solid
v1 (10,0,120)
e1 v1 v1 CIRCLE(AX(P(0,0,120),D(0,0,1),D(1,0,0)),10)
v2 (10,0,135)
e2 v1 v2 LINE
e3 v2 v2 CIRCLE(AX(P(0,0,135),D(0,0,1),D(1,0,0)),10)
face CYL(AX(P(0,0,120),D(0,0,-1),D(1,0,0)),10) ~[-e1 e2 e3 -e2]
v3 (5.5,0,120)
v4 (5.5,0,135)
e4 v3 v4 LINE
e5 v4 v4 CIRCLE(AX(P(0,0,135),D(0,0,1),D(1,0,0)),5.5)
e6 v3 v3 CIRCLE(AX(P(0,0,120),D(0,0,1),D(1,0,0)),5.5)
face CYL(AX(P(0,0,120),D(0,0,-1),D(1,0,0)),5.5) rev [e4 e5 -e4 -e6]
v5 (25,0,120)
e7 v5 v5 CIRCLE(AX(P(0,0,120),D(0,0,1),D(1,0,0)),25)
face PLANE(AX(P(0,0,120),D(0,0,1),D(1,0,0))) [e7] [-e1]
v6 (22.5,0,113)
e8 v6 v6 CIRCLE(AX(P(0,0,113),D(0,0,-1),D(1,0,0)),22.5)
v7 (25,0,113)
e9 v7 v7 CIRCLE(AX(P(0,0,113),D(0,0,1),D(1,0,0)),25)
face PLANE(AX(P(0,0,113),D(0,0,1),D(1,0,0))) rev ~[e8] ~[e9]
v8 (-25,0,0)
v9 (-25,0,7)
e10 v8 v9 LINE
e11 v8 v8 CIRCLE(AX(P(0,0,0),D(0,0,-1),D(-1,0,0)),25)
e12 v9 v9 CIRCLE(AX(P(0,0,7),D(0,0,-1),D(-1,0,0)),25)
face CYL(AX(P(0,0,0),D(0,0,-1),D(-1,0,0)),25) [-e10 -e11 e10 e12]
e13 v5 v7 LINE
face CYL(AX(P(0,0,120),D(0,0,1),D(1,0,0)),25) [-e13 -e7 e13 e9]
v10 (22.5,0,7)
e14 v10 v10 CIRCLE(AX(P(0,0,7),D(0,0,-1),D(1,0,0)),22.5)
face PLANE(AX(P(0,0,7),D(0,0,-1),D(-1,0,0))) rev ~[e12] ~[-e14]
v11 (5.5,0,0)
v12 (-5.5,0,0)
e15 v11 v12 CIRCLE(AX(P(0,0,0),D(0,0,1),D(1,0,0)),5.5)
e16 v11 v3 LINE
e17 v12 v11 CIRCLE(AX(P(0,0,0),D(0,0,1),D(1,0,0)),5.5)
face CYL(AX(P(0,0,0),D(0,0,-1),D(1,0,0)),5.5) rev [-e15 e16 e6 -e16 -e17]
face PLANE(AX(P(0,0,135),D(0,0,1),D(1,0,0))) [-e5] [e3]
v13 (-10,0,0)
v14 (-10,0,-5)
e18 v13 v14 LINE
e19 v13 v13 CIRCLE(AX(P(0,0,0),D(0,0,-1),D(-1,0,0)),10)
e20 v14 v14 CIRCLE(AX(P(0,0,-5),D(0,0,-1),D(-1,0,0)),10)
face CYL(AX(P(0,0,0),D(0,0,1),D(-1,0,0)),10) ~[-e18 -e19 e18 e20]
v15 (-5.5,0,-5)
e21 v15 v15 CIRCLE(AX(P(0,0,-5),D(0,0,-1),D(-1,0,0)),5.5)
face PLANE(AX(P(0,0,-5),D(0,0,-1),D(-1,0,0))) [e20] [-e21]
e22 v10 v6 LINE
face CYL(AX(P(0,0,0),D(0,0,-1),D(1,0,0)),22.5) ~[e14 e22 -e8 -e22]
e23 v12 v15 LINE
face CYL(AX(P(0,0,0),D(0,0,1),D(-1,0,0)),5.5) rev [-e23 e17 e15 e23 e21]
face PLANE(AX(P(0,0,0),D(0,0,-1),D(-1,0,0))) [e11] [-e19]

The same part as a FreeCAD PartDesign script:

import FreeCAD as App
import Part
import Sketcher
Q = App.Units.Quantity

doc = App.newDocument("Part")
body = doc.addObject("PartDesign::Body", "Body")

sketch1 = doc.addObject("Sketcher::SketchObject", "Sketch")
body.addObject(sketch1)
sketch1.AttachmentSupport = (doc.XY_Plane, [""])
sketch1.MapMode = "FlatFace"
sketch1.addGeometry(Part.Circle(App.Vector(0, 0, 0), App.Vector(0, 0, 1), 22), False)
sketch1.addGeometry(Part.Circle(App.Vector(0, 0, 0), App.Vector(0, 0, 1), 6), False)
sketch1.addConstraint(Sketcher.Constraint("Coincident", 0, 3, -1, 1))
sketch1.addConstraint(Sketcher.Constraint("Coincident", 1, 3, -1, 1))
sketch1.addConstraint(Sketcher.Constraint("Diameter", 0, Q("45 mm")))
sketch1.addConstraint(Sketcher.Constraint("Diameter", 1, Q("11 mm")))
pad1 = doc.addObject("PartDesign::Pad", "Pad")
body.addObject(pad1)
pad1.Profile = sketch1
pad1.Length = 120

sketch2 = doc.addObject("Sketcher::SketchObject", "Sketch001")
body.addObject(sketch2)
sketch2.AttachmentSupport = (doc.XY_Plane, [""])
sketch2.MapMode = "FlatFace"
sketch2.AttachmentOffset = App.Placement(App.Vector(0, 0, 120), App.Rotation())
sketch2.addGeometry(Part.Circle(App.Vector(0, 0, 0), App.Vector(0, 0, 1), 25), False)
sketch2.addGeometry(Part.Circle(App.Vector(0, 0, 0), App.Vector(0, 0, 1), 6), False)
sketch2.addConstraint(Sketcher.Constraint("Coincident", 0, 3, -1, 1))
sketch2.addConstraint(Sketcher.Constraint("Coincident", 1, 3, -1, 1))
sketch2.addConstraint(Sketcher.Constraint("Diameter", 0, Q("50 mm")))
sketch2.addConstraint(Sketcher.Constraint("Diameter", 1, Q("11 mm")))
pad2 = doc.addObject("PartDesign::Pad", "Pad001")
body.addObject(pad2)
pad2.Profile = sketch2
pad2.Length = 7
pad2.Reversed = True

sketch3 = doc.addObject("Sketcher::SketchObject", "Sketch002")
body.addObject(sketch3)
sketch3.AttachmentSupport = (doc.XY_Plane, [""])
sketch3.MapMode = "FlatFace"
sketch3.addGeometry(Part.Circle(App.Vector(0, 0, 0), App.Vector(0, 0, 1), 25), False)
sketch3.addGeometry(Part.Circle(App.Vector(0, 0, 0), App.Vector(0, 0, 1), 6), False)
sketch3.addConstraint(Sketcher.Constraint("Coincident", 0, 3, -1, 1))
sketch3.addConstraint(Sketcher.Constraint("Coincident", 1, 3, -1, 1))
sketch3.addConstraint(Sketcher.Constraint("Diameter", 0, Q("50 mm")))
sketch3.addConstraint(Sketcher.Constraint("Diameter", 1, Q("11 mm")))
pad3 = doc.addObject("PartDesign::Pad", "Pad002")
body.addObject(pad3)
pad3.Profile = sketch3
pad3.Length = 7

sketch4 = doc.addObject("Sketcher::SketchObject", "Sketch003")
body.addObject(sketch4)
sketch4.AttachmentSupport = (doc.XY_Plane, [""])
sketch4.MapMode = "FlatFace"
sketch4.addGeometry(Part.Circle(App.Vector(0, 0, 0), App.Vector(0, 0, 1), 10), False)
sketch4.addGeometry(Part.Circle(App.Vector(0, 0, 0), App.Vector(0, 0, 1), 6), False)
sketch4.addConstraint(Sketcher.Constraint("Coincident", 0, 3, -1, 1))
sketch4.addConstraint(Sketcher.Constraint("Coincident", 1, 3, -1, 1))
sketch4.addConstraint(Sketcher.Constraint("Diameter", 0, Q("20 mm")))
sketch4.addConstraint(Sketcher.Constraint("Diameter", 1, Q("11 mm")))
pad4 = doc.addObject("PartDesign::Pad", "Pad003")
body.addObject(pad4)
pad4.Profile = sketch4
pad4.Length = 5
pad4.Reversed = True

sketch5 = doc.addObject("Sketcher::SketchObject", "Sketch004")
body.addObject(sketch5)
sketch5.AttachmentSupport = (doc.XY_Plane, [""])
sketch5.MapMode = "FlatFace"
sketch5.AttachmentOffset = App.Placement(App.Vector(0, 0, 120), App.Rotation())
sketch5.addGeometry(Part.Circle(App.Vector(0, 0, 0), App.Vector(0, 0, 1), 10), False)
sketch5.addGeometry(Part.Circle(App.Vector(0, 0, 0), App.Vector(0, 0, 1), 6), False)
sketch5.addConstraint(Sketcher.Constraint("Coincident", 0, 3, -1, 1))
sketch5.addConstraint(Sketcher.Constraint("Coincident", 1, 3, -1, 1))
sketch5.addConstraint(Sketcher.Constraint("Diameter", 0, Q("20 mm")))
sketch5.addConstraint(Sketcher.Constraint("Diameter", 1, Q("11 mm")))
pad5 = doc.addObject("PartDesign::Pad", "Pad004")
body.addObject(pad5)
pad5.Profile = sketch5
pad5.Length = 15

doc.recompute()
